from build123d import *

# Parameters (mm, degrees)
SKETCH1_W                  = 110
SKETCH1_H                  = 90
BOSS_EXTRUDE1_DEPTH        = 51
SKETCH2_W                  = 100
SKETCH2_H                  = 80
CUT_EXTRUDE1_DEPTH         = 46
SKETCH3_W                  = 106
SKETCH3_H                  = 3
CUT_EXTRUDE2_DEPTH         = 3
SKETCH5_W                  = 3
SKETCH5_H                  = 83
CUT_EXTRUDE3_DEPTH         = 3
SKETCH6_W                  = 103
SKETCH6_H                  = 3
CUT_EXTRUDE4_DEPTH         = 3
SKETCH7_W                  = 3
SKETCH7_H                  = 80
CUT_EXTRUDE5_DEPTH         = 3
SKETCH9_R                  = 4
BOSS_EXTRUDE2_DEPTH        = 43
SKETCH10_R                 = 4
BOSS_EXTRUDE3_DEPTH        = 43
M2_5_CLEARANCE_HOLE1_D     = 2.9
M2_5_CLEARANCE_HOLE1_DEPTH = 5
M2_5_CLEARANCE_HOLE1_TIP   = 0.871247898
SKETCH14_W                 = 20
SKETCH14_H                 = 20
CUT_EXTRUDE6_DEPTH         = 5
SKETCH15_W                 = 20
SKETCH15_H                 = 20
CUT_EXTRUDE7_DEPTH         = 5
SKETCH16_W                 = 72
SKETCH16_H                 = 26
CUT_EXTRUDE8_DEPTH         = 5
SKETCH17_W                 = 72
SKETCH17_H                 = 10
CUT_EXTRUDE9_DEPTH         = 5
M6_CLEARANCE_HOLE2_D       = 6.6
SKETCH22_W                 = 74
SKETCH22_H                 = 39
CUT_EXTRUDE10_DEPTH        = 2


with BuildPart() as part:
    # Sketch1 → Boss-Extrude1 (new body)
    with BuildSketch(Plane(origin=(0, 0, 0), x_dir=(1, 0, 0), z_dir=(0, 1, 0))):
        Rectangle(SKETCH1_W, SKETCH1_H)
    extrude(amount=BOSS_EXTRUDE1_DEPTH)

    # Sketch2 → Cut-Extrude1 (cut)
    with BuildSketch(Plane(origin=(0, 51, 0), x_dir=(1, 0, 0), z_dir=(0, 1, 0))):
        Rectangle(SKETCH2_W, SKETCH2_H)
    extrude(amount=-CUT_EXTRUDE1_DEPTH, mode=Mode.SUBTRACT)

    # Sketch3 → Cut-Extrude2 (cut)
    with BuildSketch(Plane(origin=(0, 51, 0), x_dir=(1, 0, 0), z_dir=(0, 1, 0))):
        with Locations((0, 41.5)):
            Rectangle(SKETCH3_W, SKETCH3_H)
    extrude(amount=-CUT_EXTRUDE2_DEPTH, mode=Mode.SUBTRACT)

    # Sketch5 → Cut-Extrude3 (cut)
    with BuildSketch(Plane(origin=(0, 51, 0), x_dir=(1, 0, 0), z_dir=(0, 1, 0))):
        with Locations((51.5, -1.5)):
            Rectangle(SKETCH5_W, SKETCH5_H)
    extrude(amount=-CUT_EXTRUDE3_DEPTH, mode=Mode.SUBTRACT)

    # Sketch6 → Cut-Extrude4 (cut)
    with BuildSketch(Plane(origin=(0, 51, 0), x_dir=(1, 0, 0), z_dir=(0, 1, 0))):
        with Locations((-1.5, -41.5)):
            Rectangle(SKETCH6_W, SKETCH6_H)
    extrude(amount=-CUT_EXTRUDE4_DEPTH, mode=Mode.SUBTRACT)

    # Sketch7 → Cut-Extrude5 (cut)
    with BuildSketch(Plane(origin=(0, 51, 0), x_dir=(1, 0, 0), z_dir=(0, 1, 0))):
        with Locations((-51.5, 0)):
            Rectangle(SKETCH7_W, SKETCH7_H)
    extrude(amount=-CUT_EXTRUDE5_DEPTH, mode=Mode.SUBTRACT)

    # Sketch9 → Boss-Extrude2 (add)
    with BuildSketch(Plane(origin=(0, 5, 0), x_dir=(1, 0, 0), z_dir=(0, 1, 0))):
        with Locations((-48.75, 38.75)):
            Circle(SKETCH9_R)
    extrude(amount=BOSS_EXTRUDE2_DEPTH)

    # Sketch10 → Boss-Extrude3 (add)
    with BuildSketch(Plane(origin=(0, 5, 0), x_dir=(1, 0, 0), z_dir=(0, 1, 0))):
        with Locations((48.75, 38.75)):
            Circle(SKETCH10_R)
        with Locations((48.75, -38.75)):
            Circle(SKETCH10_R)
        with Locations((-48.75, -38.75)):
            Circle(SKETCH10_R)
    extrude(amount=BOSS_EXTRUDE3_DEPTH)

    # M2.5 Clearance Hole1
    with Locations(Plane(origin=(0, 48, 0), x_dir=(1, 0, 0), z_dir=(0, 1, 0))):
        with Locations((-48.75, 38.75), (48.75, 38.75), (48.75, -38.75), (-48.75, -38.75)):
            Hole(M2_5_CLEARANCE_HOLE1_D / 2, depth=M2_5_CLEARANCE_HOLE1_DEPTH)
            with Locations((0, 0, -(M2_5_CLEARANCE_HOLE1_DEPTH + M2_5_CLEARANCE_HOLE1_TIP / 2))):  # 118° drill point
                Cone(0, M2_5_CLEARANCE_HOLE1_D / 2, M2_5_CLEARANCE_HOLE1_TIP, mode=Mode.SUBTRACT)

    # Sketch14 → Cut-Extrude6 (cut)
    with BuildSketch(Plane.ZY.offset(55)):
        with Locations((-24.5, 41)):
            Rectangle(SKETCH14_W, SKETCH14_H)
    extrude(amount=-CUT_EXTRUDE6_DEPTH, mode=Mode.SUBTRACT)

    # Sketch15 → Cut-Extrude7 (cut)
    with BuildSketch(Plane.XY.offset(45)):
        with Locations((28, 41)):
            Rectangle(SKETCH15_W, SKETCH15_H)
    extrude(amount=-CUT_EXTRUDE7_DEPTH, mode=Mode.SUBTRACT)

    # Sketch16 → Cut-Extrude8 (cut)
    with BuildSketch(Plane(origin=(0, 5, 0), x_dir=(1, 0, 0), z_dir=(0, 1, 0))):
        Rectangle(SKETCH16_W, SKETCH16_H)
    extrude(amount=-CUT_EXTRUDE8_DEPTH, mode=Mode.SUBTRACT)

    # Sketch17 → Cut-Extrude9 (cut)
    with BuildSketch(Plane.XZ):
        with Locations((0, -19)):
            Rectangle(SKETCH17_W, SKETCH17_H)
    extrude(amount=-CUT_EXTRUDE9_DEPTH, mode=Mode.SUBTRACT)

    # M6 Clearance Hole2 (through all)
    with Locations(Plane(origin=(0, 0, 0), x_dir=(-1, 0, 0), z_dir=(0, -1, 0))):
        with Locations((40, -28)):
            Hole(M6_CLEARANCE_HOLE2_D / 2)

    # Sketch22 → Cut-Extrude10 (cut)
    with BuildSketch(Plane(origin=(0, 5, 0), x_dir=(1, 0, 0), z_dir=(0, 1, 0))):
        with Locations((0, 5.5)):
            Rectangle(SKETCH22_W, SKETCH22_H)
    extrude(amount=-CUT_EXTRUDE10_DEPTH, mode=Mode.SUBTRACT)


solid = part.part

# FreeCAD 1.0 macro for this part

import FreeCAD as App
import Part
import Sketcher

V = App.Vector
Q = App.Units.Quantity


def add_polygon(sketch, points):
    """Adds a closed chain of lines whose ends are joined by coincident constraints."""
    first, n = sketch.GeometryCount, len(points)
    for a, b in zip(points, points[1:] + points[:1]):
        sketch.addGeometry(Part.LineSegment(App.Vector(*a, 0), App.Vector(*b, 0)), False)
    for i in range(n):
        sketch.addConstraint(Sketcher.Constraint("Coincident", first + i, 2, first + (i + 1) % n, 1))

doc = App.newDocument("Part")
params = doc.addObject("Spreadsheet::Sheet", "Params")
for row, (alias, value) in enumerate([
    ("sketch1_width", "110 mm"),
    ("sketch1_height", "90 mm"),
    ("pad1_length", "51 mm"),
    ("sketch2_width", "100 mm"),
    ("sketch2_height", "80 mm"),
    ("pocket1_length", "46 mm"),
    ("sketch3_width", "106 mm"),
    ("sketch3_height", "3 mm"),
    ("pocket2_length", "3 mm"),
    ("sketch4_width", "3 mm"),
    ("sketch4_height", "83 mm"),
    ("pocket3_length", "3 mm"),
    ("sketch5_width", "103 mm"),
    ("sketch5_height", "3 mm"),
    ("pocket4_length", "3 mm"),
    ("sketch6_width", "3 mm"),
    ("sketch6_height", "80 mm"),
    ("pocket5_length", "3 mm"),
    ("sketch7_diameter", "8 mm"),
    ("pad2_length", "43 mm"),
    ("sketch8_diameter", "8 mm"),
    ("pad3_length", "43 mm"),
    ("sketch9_diameter", "2.9 mm"),
    ("hole_diameter", "2.9 mm"),
    ("hole_depth", "5 mm"),
    ("sketch10_width", "20 mm"),
    ("pocket6_length", "5 mm"),
    ("sketch11_width", "20 mm"),
    ("pocket7_length", "5 mm"),
    ("sketch12_width", "72 mm"),
    ("sketch12_height", "26 mm"),
    ("pocket8_length", "5 mm"),
    ("sketch13_width", "72 mm"),
    ("sketch13_height", "10 mm"),
    ("pocket9_length", "5 mm"),
    ("sketch14_diameter", "6.6 mm"),
    ("hole2_diameter", "6.6 mm"),
    ("sketch15_width", "74 mm"),
    ("sketch15_height", "39 mm"),
    ("pocket10_length", "2 mm"),
], start=1):
    params.set(f"A{row}", alias)
    params.set(f"B{row}", "=" + value)
    params.setAlias(f"B{row}", alias)

body = doc.addObject("PartDesign::Body", "Body")

# Sketch on XZ plane
sketch1 = body.newObject("Sketcher::SketchObject", "Sketch")
sketch1.AttachmentSupport = (doc.getObject("XZ_Plane"), [""])
sketch1.MapMode = "FlatFace"
add_polygon(sketch1, [(-55, -45), (-55, 45), (55, 45), (55, -45)])  # lines 0-3
sketch1.addConstraint(Sketcher.Constraint("Vertical", 0))
sketch1.addConstraint(Sketcher.Constraint("Horizontal", 1))
sketch1.addConstraint(Sketcher.Constraint("Vertical", 2))
sketch1.addConstraint(Sketcher.Constraint("Horizontal", 3))
sketch1.addConstraint(Sketcher.Constraint("Symmetric", 0, 2, 2, 2, -1, 1))
sketch1.addConstraint(Sketcher.Constraint("DistanceX", 1, 1, 1, 2, Q("110 mm")))
sketch1.addConstraint(Sketcher.Constraint("DistanceY", 0, 1, 0, 2, Q("90 mm")))
sketch1.setExpression("Constraints[9]", "Params.sketch1_width")
sketch1.setExpression("Constraints[10]", "Params.sketch1_height")
pad1 = body.newObject("PartDesign::Pad", "Pad")
pad1.Profile = sketch1
pad1.setExpression("Length", "Params.pad1_length")
pad1.Reversed = True

# Sketch on XZ plane
sketch2 = body.newObject("Sketcher::SketchObject", "Sketch001")
sketch2.AttachmentSupport = (doc.getObject("XZ_Plane"), [""])
sketch2.MapMode = "FlatFace"
sketch2.AttachmentOffset = App.Placement(V(0, 0, -51), App.Rotation())
add_polygon(sketch2, [(-50, -40), (-50, 40), (50, 40), (50, -40)])  # lines 0-3
sketch2.addConstraint(Sketcher.Constraint("Vertical", 0))
sketch2.addConstraint(Sketcher.Constraint("Horizontal", 1))
sketch2.addConstraint(Sketcher.Constraint("Vertical", 2))
sketch2.addConstraint(Sketcher.Constraint("Horizontal", 3))
sketch2.addConstraint(Sketcher.Constraint("Symmetric", 0, 2, 2, 2, -1, 1))
sketch2.addConstraint(Sketcher.Constraint("DistanceX", 1, 1, 1, 2, Q("100 mm")))
sketch2.addConstraint(Sketcher.Constraint("DistanceY", 0, 1, 0, 2, Q("80 mm")))
sketch2.setExpression("Constraints[9]", "Params.sketch2_width")
sketch2.setExpression("Constraints[10]", "Params.sketch2_height")
pocket1 = body.newObject("PartDesign::Pocket", "Pocket")
pocket1.Profile = sketch2
pocket1.setExpression("Length", "Params.pocket1_length")
pocket1.Reversed = True

# Sketch on XZ plane
sketch3 = body.newObject("Sketcher::SketchObject", "Sketch002")
sketch3.AttachmentSupport = (doc.getObject("XZ_Plane"), [""])
sketch3.MapMode = "FlatFace"
sketch3.AttachmentOffset = App.Placement(V(0, 0, -51), App.Rotation())
add_polygon(sketch3, [(-53, -43), (-53, -40), (53, -40), (53, -43)])  # lines 0-3
sketch3.addConstraint(Sketcher.Constraint("Vertical", 0))
sketch3.addConstraint(Sketcher.Constraint("Horizontal", 1))
sketch3.addConstraint(Sketcher.Constraint("Vertical", 2))
sketch3.addConstraint(Sketcher.Constraint("Horizontal", 3))
sketch3.addConstraint(Sketcher.Constraint("DistanceX", 1, 1, 1, 2, Q("106 mm")))
sketch3.addConstraint(Sketcher.Constraint("DistanceY", 0, 1, 0, 2, Q("3 mm")))
sketch3.addConstraint(Sketcher.Constraint("DistanceX", 0, 2, -1, 1, Q("53 mm")))
sketch3.addConstraint(Sketcher.Constraint("DistanceY", 0, 2, -1, 1, Q("40 mm")))
sketch3.setExpression("Constraints[8]", "Params.sketch3_width")
sketch3.setExpression("Constraints[9]", "Params.sketch3_height")
pocket2 = body.newObject("PartDesign::Pocket", "Pocket001")
pocket2.Profile = sketch3
pocket2.setExpression("Length", "Params.pocket2_length")
pocket2.Reversed = True

# Sketch on XZ plane
sketch4 = body.newObject("Sketcher::SketchObject", "Sketch003")
sketch4.AttachmentSupport = (doc.getObject("XZ_Plane"), [""])
sketch4.MapMode = "FlatFace"
sketch4.AttachmentOffset = App.Placement(V(0, 0, -51), App.Rotation())
add_polygon(sketch4, [(50, -40), (50, 43), (53, 43), (53, -40)])  # lines 0-3
sketch4.addConstraint(Sketcher.Constraint("Vertical", 0))
sketch4.addConstraint(Sketcher.Constraint("Horizontal", 1))
sketch4.addConstraint(Sketcher.Constraint("Vertical", 2))
sketch4.addConstraint(Sketcher.Constraint("Horizontal", 3))
sketch4.addConstraint(Sketcher.Constraint("DistanceX", 1, 1, 1, 2, Q("3 mm")))
sketch4.addConstraint(Sketcher.Constraint("DistanceY", 0, 1, 0, 2, Q("83 mm")))
sketch4.addConstraint(Sketcher.Constraint("DistanceX", -1, 1, 0, 2, Q("50 mm")))
sketch4.addConstraint(Sketcher.Constraint("DistanceY", -1, 1, 0, 2, Q("43 mm")))
sketch4.setExpression("Constraints[8]", "Params.sketch4_width")
sketch4.setExpression("Constraints[9]", "Params.sketch4_height")
pocket3 = body.newObject("PartDesign::Pocket", "Pocket002")
pocket3.Profile = sketch4
pocket3.setExpression("Length", "Params.pocket3_length")
pocket3.Reversed = True

# Sketch on XZ plane
sketch5 = body.newObject("Sketcher::SketchObject", "Sketch004")
sketch5.AttachmentSupport = (doc.getObject("XZ_Plane"), [""])
sketch5.MapMode = "FlatFace"
sketch5.AttachmentOffset = App.Placement(V(0, 0, -51), App.Rotation())
add_polygon(sketch5, [(-53, 40), (-53, 43), (50, 43), (50, 40)])  # lines 0-3
sketch5.addConstraint(Sketcher.Constraint("Vertical", 0))
sketch5.addConstraint(Sketcher.Constraint("Horizontal", 1))
sketch5.addConstraint(Sketcher.Constraint("Vertical", 2))
sketch5.addConstraint(Sketcher.Constraint("Horizontal", 3))
sketch5.addConstraint(Sketcher.Constraint("DistanceX", 1, 1, 1, 2, Q("103 mm")))
sketch5.addConstraint(Sketcher.Constraint("DistanceY", 0, 1, 0, 2, Q("3 mm")))
sketch5.addConstraint(Sketcher.Constraint("DistanceX", 0, 2, -1, 1, Q("53 mm")))
sketch5.addConstraint(Sketcher.Constraint("DistanceY", -1, 1, 0, 2, Q("43 mm")))
sketch5.setExpression("Constraints[8]", "Params.sketch5_width")
sketch5.setExpression("Constraints[9]", "Params.sketch5_height")
pocket4 = body.newObject("PartDesign::Pocket", "Pocket003")
pocket4.Profile = sketch5
pocket4.setExpression("Length", "Params.pocket4_length")
pocket4.Reversed = True

# Sketch on XZ plane
sketch6 = body.newObject("Sketcher::SketchObject", "Sketch005")
sketch6.AttachmentSupport = (doc.getObject("XZ_Plane"), [""])
sketch6.MapMode = "FlatFace"
sketch6.AttachmentOffset = App.Placement(V(0, 0, -51), App.Rotation())
add_polygon(sketch6, [(-53, -40), (-53, 40), (-50, 40), (-50, -40)])  # lines 0-3
sketch6.addConstraint(Sketcher.Constraint("Vertical", 0))
sketch6.addConstraint(Sketcher.Constraint("Horizontal", 1))
sketch6.addConstraint(Sketcher.Constraint("Vertical", 2))
sketch6.addConstraint(Sketcher.Constraint("Horizontal", 3))
sketch6.addConstraint(Sketcher.Constraint("DistanceX", 1, 1, 1, 2, Q("3 mm")))
sketch6.addConstraint(Sketcher.Constraint("DistanceY", 0, 1, 0, 2, Q("80 mm")))
sketch6.addConstraint(Sketcher.Constraint("DistanceX", 0, 2, -1, 1, Q("53 mm")))
sketch6.addConstraint(Sketcher.Constraint("DistanceY", -1, 1, 0, 2, Q("40 mm")))
sketch6.setExpression("Constraints[8]", "Params.sketch6_width")
sketch6.setExpression("Constraints[9]", "Params.sketch6_height")
pocket5 = body.newObject("PartDesign::Pocket", "Pocket004")
pocket5.Profile = sketch6
pocket5.setExpression("Length", "Params.pocket5_length")
pocket5.Reversed = True

# Sketch on XZ plane
sketch7 = body.newObject("Sketcher::SketchObject", "Sketch006")
sketch7.AttachmentSupport = (doc.getObject("XZ_Plane"), [""])
sketch7.MapMode = "FlatFace"
sketch7.AttachmentOffset = App.Placement(V(0, 0, -5), App.Rotation())
sketch7.addGeometry(Part.Circle(V(-48.8, -38.8, 0), V(0, 0, 1), 4), False)
sketch7.addConstraint(Sketcher.Constraint("Diameter", 0, Q("8 mm")))
sketch7.addConstraint(Sketcher.Constraint("DistanceX", 0, 3, -1, 1, Q("48.75 mm")))
sketch7.addConstraint(Sketcher.Constraint("DistanceY", 0, 3, -1, 1, Q("38.75 mm")))
sketch7.setExpression("Constraints[0]", "Params.sketch7_diameter")
pad2 = body.newObject("PartDesign::Pad", "Pad001")
pad2.Profile = sketch7
pad2.setExpression("Length", "Params.pad2_length")
pad2.Reversed = True

# Sketch on XZ plane
sketch8 = body.newObject("Sketcher::SketchObject", "Sketch007")
sketch8.AttachmentSupport = (doc.getObject("XZ_Plane"), [""])
sketch8.MapMode = "FlatFace"
sketch8.AttachmentOffset = App.Placement(V(0, 0, -5), App.Rotation())
sketch8.addGeometry(Part.Circle(V(48.8, -38.8, 0), V(0, 0, 1), 4), False)
sketch8.addGeometry(Part.Circle(V(48.8, 38.8, 0), V(0, 0, 1), 4), False)
sketch8.addGeometry(Part.Circle(V(-48.8, 38.8, 0), V(0, 0, 1), 4), False)
sketch8.addConstraint(Sketcher.Constraint("Equal", 0, 1))
sketch8.addConstraint(Sketcher.Constraint("Equal", 1, 2))
sketch8.addConstraint(Sketcher.Constraint("Symmetric", 0, 3, 2, 3, -1, 1))
sketch8.addConstraint(Sketcher.Constraint("Symmetric", 1, 3, 2, 3, -2))
sketch8.addConstraint(Sketcher.Constraint("Diameter", 0, Q("8 mm")))
sketch8.addConstraint(Sketcher.Constraint("DistanceY", 0, 3, 1, 3, Q("77.5 mm")))
sketch8.addConstraint(Sketcher.Constraint("DistanceX", 2, 3, 1, 3, Q("97.5 mm")))
sketch8.setExpression("Constraints[4]", "Params.sketch8_diameter")
pad3 = body.newObject("PartDesign::Pad", "Pad002")
pad3.Profile = sketch8
pad3.setExpression("Length", "Params.pad3_length")
pad3.Reversed = True

# Sketch on XZ plane
sketch9 = body.newObject("Sketcher::SketchObject", "Sketch008")
sketch9.AttachmentSupport = (doc.getObject("XZ_Plane"), [""])
sketch9.MapMode = "FlatFace"
sketch9.AttachmentOffset = App.Placement(V(0, 0, -48), App.Rotation())
sketch9.addGeometry(Part.Circle(V(-48.8, -38.8, 0), V(0, 0, 1), 1.4), False)
sketch9.addGeometry(Part.Circle(V(48.8, -38.8, 0), V(0, 0, 1), 1.4), False)
sketch9.addGeometry(Part.Circle(V(48.8, 38.8, 0), V(0, 0, 1), 1.4), False)
sketch9.addGeometry(Part.Circle(V(-48.8, 38.8, 0), V(0, 0, 1), 1.4), False)
sketch9.addConstraint(Sketcher.Constraint("Equal", 0, 1))
sketch9.addConstraint(Sketcher.Constraint("Equal", 1, 2))
sketch9.addConstraint(Sketcher.Constraint("Equal", 2, 3))
sketch9.addConstraint(Sketcher.Constraint("Symmetric", 0, 3, 2, 3, -1, 1))
sketch9.addConstraint(Sketcher.Constraint("Symmetric", 1, 3, 3, 3, -1, 1))
sketch9.addConstraint(Sketcher.Constraint("Symmetric", 0, 3, 1, 3, -2))
sketch9.addConstraint(Sketcher.Constraint("Diameter", 0, Q("2.9 mm")))
sketch9.addConstraint(Sketcher.Constraint("DistanceX", 0, 3, 1, 3, Q("97.5 mm")))
sketch9.addConstraint(Sketcher.Constraint("DistanceY", 1, 3, 2, 3, Q("77.5 mm")))
sketch9.setExpression("Constraints[6]", "Params.sketch9_diameter")
doc.recompute()
hole = body.newObject("PartDesign::Hole", "Hole")
hole.Profile = sketch9
hole.ThreadType = "None"
hole.setExpression("Diameter", "Params.hole_diameter")
hole.DepthType = "Dimension"
hole.setExpression("Depth", "Params.hole_depth")
hole.DrillPoint = "Angled"
hole.DrillPointAngle = 118
hole.Reversed = True

# Sketch on YZ plane
sketch10 = body.newObject("Sketcher::SketchObject", "Sketch009")
sketch10.AttachmentSupport = (doc.getObject("YZ_Plane"), [""])
sketch10.MapMode = "FlatFace"
sketch10.AttachmentOffset = App.Placement(V(0, 0, -55), App.Rotation())
add_polygon(sketch10, [(51, -34), (31, -34), (31, -14), (51, -14)])  # lines 0-3
sketch10.addConstraint(Sketcher.Constraint("Horizontal", 0))
sketch10.addConstraint(Sketcher.Constraint("Vertical", 1))
sketch10.addConstraint(Sketcher.Constraint("Horizontal", 2))
sketch10.addConstraint(Sketcher.Constraint("Vertical", 3))
sketch10.addConstraint(Sketcher.Constraint("Equal", 2, 1))
sketch10.addConstraint(Sketcher.Constraint("DistanceX", 0, 2, 0, 1, Q("20 mm")))
sketch10.addConstraint(Sketcher.Constraint("DistanceX", -1, 1, 0, 2, Q("31 mm")))
sketch10.addConstraint(Sketcher.Constraint("DistanceY", 0, 2, -1, 1, Q("34.5 mm")))
sketch10.setExpression("Constraints[9]", "Params.sketch10_width")
pocket6 = body.newObject("PartDesign::Pocket", "Pocket005")
pocket6.Profile = sketch10
pocket6.setExpression("Length", "Params.pocket6_length")
pocket6.Reversed = True

# Sketch on XY plane
sketch11 = body.newObject("Sketcher::SketchObject", "Sketch010")
sketch11.AttachmentSupport = (doc.getObject("XY_Plane"), [""])
sketch11.MapMode = "FlatFace"
sketch11.AttachmentOffset = App.Placement(V(0, 0, 45), App.Rotation())
add_polygon(sketch11, [(18, 51), (18, 31), (38, 31), (38, 51)])  # lines 0-3
sketch11.addConstraint(Sketcher.Constraint("Vertical", 0))
sketch11.addConstraint(Sketcher.Constraint("Horizontal", 1))
sketch11.addConstraint(Sketcher.Constraint("Vertical", 2))
sketch11.addConstraint(Sketcher.Constraint("Horizontal", 3))
sketch11.addConstraint(Sketcher.Constraint("Equal", 3, 0))
sketch11.addConstraint(Sketcher.Constraint("DistanceX", 1, 1, 1, 2, Q("20 mm")))
sketch11.addConstraint(Sketcher.Constraint("DistanceX", -1, 1, 0, 2, Q("18 mm")))
sketch11.addConstraint(Sketcher.Constraint("DistanceY", -1, 1, 0, 2, Q("31 mm")))
sketch11.setExpression("Constraints[9]", "Params.sketch11_width")
pocket7 = body.newObject("PartDesign::Pocket", "Pocket006")
pocket7.Profile = sketch11
pocket7.setExpression("Length", "Params.pocket7_length")

# Sketch on XZ plane
sketch12 = body.newObject("Sketcher::SketchObject", "Sketch011")
sketch12.AttachmentSupport = (doc.getObject("XZ_Plane"), [""])
sketch12.MapMode = "FlatFace"
sketch12.AttachmentOffset = App.Placement(V(0, 0, -5), App.Rotation())
add_polygon(sketch12, [(-36, -13), (-36, 13), (36, 13), (36, -13)])  # lines 0-3
sketch12.addConstraint(Sketcher.Constraint("Vertical", 0))
sketch12.addConstraint(Sketcher.Constraint("Horizontal", 1))
sketch12.addConstraint(Sketcher.Constraint("Vertical", 2))
sketch12.addConstraint(Sketcher.Constraint("Horizontal", 3))
sketch12.addConstraint(Sketcher.Constraint("Symmetric", 0, 2, 2, 2, -1, 1))
sketch12.addConstraint(Sketcher.Constraint("DistanceX", 1, 1, 1, 2, Q("72 mm")))
sketch12.addConstraint(Sketcher.Constraint("DistanceY", 0, 1, 0, 2, Q("26 mm")))
sketch12.setExpression("Constraints[9]", "Params.sketch12_width")
sketch12.setExpression("Constraints[10]", "Params.sketch12_height")
pocket8 = body.newObject("PartDesign::Pocket", "Pocket007")
pocket8.Profile = sketch12
pocket8.setExpression("Length", "Params.pocket8_length")
pocket8.Reversed = True

# Sketch on XZ plane
sketch13 = body.newObject("Sketcher::SketchObject", "Sketch012")
sketch13.AttachmentSupport = (doc.getObject("XZ_Plane"), [""])
sketch13.MapMode = "FlatFace"
add_polygon(sketch13, [(-36, -14), (-36, -24), (36, -24), (36, -14)])  # lines 0-3
sketch13.addConstraint(Sketcher.Constraint("Vertical", 0))
sketch13.addConstraint(Sketcher.Constraint("Horizontal", 1))
sketch13.addConstraint(Sketcher.Constraint("Vertical", 2))
sketch13.addConstraint(Sketcher.Constraint("Horizontal", 3))
sketch13.addConstraint(Sketcher.Constraint("DistanceX", 1, 1, 1, 2, Q("72 mm")))
sketch13.addConstraint(Sketcher.Constraint("DistanceY", 0, 2, 0, 1, Q("10 mm")))
sketch13.addConstraint(Sketcher.Constraint("DistanceX", 0, 2, -1, 1, Q("36 mm")))
sketch13.addConstraint(Sketcher.Constraint("DistanceY", 0, 2, -1, 1, Q("24 mm")))
sketch13.setExpression("Constraints[8]", "Params.sketch13_width")
sketch13.setExpression("Constraints[9]", "Params.sketch13_height")
pocket9 = body.newObject("PartDesign::Pocket", "Pocket008")
pocket9.Profile = sketch13
pocket9.setExpression("Length", "Params.pocket9_length")

# Sketch on XZ plane
sketch14 = body.newObject("Sketcher::SketchObject", "Sketch013")
sketch14.AttachmentSupport = (doc.getObject("XZ_Plane"), [""])
sketch14.MapMode = "FlatFace"
sketch14.addGeometry(Part.Circle(V(-40, 28, 0), V(0, 0, 1), 3.3), False)
sketch14.addConstraint(Sketcher.Constraint("Diameter", 0, Q("6.6 mm")))
sketch14.addConstraint(Sketcher.Constraint("DistanceX", 0, 3, -1, 1, Q("40 mm")))
sketch14.addConstraint(Sketcher.Constraint("DistanceY", -1, 1, 0, 3, Q("28 mm")))
sketch14.setExpression("Constraints[0]", "Params.sketch14_diameter")
doc.recompute()
hole2 = body.newObject("PartDesign::Hole", "Hole001")
hole2.Profile = sketch14
hole2.ThreadType = "None"
hole2.setExpression("Diameter", "Params.hole2_diameter")
hole2.DepthType = "ThroughAll"

# Sketch on XZ plane
sketch15 = body.newObject("Sketcher::SketchObject", "Sketch014")
sketch15.AttachmentSupport = (doc.getObject("XZ_Plane"), [""])
sketch15.MapMode = "FlatFace"
sketch15.AttachmentOffset = App.Placement(V(0, 0, -5), App.Rotation())
add_polygon(sketch15, [(-37, -25), (-37, 14), (37, 14), (37, -25)])  # lines 0-3
sketch15.addConstraint(Sketcher.Constraint("Vertical", 0))
sketch15.addConstraint(Sketcher.Constraint("Horizontal", 1))
sketch15.addConstraint(Sketcher.Constraint("Vertical", 2))
sketch15.addConstraint(Sketcher.Constraint("Horizontal", 3))
sketch15.addConstraint(Sketcher.Constraint("DistanceX", 1, 1, 1, 2, Q("74 mm")))
sketch15.addConstraint(Sketcher.Constraint("DistanceY", 0, 1, 0, 2, Q("39 mm")))
sketch15.addConstraint(Sketcher.Constraint("DistanceX", 0, 2, -1, 1, Q("37 mm")))
sketch15.addConstraint(Sketcher.Constraint("DistanceY", -1, 1, 0, 2, Q("14 mm")))
sketch15.setExpression("Constraints[8]", "Params.sketch15_width")
sketch15.setExpression("Constraints[9]", "Params.sketch15_height")
pocket10 = body.newObject("PartDesign::Pocket", "Pocket009")
pocket10.Profile = sketch15
pocket10.setExpression("Length", "Params.pocket10_length")
pocket10.Reversed = True

doc.recompute()
